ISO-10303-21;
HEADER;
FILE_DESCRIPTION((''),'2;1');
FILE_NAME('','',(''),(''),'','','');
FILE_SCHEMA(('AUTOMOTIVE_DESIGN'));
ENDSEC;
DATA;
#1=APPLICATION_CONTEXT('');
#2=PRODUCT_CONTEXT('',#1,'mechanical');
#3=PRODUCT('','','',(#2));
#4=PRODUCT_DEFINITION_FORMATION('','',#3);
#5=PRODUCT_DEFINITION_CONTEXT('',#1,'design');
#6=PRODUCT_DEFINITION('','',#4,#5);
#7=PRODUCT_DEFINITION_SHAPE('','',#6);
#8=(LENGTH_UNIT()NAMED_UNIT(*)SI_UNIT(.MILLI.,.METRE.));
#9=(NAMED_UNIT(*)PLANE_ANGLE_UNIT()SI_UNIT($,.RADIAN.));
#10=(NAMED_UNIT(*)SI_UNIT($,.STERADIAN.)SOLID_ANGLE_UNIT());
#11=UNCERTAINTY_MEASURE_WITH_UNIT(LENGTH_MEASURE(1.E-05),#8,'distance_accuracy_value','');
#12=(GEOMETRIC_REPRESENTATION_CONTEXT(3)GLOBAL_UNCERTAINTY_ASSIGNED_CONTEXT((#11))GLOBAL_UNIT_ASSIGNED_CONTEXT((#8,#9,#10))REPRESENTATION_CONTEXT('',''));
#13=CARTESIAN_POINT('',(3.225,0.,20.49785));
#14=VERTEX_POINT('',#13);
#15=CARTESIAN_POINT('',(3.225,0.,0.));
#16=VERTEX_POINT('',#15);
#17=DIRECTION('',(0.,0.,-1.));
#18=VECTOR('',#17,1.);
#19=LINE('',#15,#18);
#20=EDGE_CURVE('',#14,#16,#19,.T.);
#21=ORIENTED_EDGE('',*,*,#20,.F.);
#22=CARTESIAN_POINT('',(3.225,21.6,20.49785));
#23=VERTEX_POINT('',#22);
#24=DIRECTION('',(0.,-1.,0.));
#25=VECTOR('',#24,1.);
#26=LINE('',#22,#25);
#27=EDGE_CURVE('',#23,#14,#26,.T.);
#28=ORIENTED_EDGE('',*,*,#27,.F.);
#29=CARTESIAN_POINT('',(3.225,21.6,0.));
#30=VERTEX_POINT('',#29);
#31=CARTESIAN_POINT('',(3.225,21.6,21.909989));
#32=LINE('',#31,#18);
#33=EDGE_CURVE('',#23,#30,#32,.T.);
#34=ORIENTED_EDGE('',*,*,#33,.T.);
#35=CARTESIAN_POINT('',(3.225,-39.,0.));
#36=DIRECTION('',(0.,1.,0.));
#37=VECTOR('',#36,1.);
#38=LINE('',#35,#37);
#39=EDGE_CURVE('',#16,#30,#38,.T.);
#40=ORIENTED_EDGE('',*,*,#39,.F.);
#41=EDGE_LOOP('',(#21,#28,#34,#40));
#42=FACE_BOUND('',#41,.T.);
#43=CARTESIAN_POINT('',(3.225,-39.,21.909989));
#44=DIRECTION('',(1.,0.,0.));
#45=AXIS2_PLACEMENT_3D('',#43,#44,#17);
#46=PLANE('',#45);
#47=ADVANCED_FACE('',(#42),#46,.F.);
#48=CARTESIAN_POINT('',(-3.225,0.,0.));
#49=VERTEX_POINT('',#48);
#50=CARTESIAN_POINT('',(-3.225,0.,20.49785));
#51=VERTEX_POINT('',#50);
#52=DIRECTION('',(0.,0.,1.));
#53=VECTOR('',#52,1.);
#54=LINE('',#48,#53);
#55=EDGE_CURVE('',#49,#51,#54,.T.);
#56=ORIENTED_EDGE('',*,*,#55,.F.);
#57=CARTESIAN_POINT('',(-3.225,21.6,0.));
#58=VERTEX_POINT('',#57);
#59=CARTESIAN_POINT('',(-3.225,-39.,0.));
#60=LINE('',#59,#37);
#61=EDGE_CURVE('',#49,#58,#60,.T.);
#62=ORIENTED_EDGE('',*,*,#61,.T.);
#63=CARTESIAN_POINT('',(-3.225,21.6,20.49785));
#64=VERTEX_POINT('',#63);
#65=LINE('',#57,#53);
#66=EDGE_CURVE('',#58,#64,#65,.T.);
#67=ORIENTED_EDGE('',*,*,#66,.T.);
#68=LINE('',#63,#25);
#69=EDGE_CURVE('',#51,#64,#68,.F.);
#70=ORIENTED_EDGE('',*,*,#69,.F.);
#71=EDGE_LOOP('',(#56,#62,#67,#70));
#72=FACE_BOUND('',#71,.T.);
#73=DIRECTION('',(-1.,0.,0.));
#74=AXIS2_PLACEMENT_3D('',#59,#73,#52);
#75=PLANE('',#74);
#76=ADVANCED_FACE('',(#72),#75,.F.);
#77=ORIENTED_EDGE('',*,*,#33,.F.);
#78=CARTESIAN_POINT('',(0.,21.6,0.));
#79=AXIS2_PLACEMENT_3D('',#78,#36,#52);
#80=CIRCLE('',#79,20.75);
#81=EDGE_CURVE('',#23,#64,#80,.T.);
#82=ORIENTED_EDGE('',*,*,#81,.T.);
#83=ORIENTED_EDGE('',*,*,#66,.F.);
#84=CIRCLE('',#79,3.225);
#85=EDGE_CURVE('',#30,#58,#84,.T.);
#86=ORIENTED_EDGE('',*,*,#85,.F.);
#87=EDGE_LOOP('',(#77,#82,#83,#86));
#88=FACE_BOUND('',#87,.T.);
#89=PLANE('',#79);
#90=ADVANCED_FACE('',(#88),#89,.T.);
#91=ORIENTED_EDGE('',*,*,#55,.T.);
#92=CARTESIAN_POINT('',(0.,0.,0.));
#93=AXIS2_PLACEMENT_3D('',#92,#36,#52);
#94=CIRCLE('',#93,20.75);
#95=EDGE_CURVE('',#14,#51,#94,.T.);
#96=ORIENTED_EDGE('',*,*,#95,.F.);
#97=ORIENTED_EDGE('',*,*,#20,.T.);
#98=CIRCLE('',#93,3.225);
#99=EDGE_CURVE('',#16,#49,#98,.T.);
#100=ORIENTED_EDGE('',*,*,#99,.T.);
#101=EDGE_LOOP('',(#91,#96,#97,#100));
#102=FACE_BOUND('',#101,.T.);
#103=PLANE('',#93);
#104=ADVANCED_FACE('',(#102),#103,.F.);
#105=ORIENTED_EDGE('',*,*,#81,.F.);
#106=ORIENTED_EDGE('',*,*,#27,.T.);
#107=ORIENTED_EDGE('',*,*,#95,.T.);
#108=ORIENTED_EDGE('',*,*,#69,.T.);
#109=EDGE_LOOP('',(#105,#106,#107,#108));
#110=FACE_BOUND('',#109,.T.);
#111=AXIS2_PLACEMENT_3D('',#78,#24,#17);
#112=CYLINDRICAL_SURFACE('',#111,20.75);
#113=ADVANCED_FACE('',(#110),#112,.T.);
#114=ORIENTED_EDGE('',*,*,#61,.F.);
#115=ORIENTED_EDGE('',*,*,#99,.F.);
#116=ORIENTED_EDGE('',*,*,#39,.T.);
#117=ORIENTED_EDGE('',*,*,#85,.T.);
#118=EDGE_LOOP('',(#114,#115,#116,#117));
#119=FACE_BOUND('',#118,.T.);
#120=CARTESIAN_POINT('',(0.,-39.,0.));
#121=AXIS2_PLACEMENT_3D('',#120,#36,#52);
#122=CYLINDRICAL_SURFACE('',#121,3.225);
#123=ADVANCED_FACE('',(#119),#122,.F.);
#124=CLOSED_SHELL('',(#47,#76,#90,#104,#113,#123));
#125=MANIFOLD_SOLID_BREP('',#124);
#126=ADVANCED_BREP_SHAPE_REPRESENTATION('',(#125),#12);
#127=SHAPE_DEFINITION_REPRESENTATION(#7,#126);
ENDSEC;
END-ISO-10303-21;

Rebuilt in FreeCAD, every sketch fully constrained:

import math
import FreeCAD as App
import Part
import Sketcher
Q = App.Units.Quantity

doc = App.newDocument("Part")
params = doc.addObject("Spreadsheet::Sheet", "Params")
for row, (alias, value) in enumerate([
    ("sketch1_diameter", "41.5 mm"),
    ("pad1_length", "21.6 mm"),
    ("pocket1_length", "60.6 mm"),
], start=1):
    params.set(f"A{row}", alias)
    params.set(f"B{row}", "=" + value)
    params.setAlias(f"B{row}", alias)

body = doc.addObject("PartDesign::Body", "Body")

sketch1 = doc.addObject("Sketcher::SketchObject", "Sketch")
body.addObject(sketch1)
sketch1.AttachmentSupport = (doc.XZ_Plane, [""])
sketch1.MapMode = "FlatFace"
sketch1.addGeometry(Part.Circle(App.Vector(0, 0, 0), App.Vector(0, 0, 1), 21), False)
sketch1.addConstraint(Sketcher.Constraint("Coincident", 0, 3, -1, 1))
sketch1.addConstraint(Sketcher.Constraint("Diameter", 0, Q("41.5 mm")))
sketch1.setExpression("Constraints[1]", "Params.sketch1_diameter")
pad1 = doc.addObject("PartDesign::Pad", "Pad")
body.addObject(pad1)
pad1.Profile = sketch1
pad1.setExpression("Length", "Params.pad1_length")
pad1.Reversed = True

sketch2 = doc.addObject("Sketcher::SketchObject", "Sketch001")
body.addObject(sketch2)
sketch2.AttachmentSupport = (doc.XZ_Plane, [""])
sketch2.MapMode = "FlatFace"
sketch2.AttachmentOffset = App.Placement(App.Vector(0, 0, -21.6), App.Rotation())
sketch2.addGeometry(Part.LineSegment(App.Vector(-3.2, 0, 0), App.Vector(-3.2, 21.9, 0)), False)
sketch2.addGeometry(Part.LineSegment(App.Vector(-3.2, 21.9, 0), App.Vector(3.2, 21.9, 0)), False)
sketch2.addGeometry(Part.LineSegment(App.Vector(3.2, 21.9, 0), App.Vector(3.2, 0, 0)), False)
sketch2.addGeometry(Part.ArcOfCircle(Part.Circle(App.Vector(0, 0, 0), App.Vector(0, 0, 1), 3.2), math.radians(180), math.radians(360)), False)
sketch2.addConstraint(Sketcher.Constraint("Coincident", 0, 2, 1, 1))
sketch2.addConstraint(Sketcher.Constraint("Coincident", 1, 2, 2, 1))
sketch2.addConstraint(Sketcher.Constraint("Tangent", 2, 2, 3, 2))
sketch2.addConstraint(Sketcher.Constraint("Tangent", 3, 1, 0, 1))
sketch2.addConstraint(Sketcher.Constraint("Vertical", 0))
sketch2.addConstraint(Sketcher.Constraint("Horizontal", 1))
sketch2.addConstraint(Sketcher.Constraint("Vertical", 2))
sketch2.addConstraint(Sketcher.Constraint("Coincident", 3, 3, -1, 1))
sketch2.addConstraint(Sketcher.Constraint("Radius", 3, Q("3.225 mm")))
sketch2.addConstraint(Sketcher.Constraint("DistanceY", 0, 1, 0, 2, Q("21.909989 mm")))
pocket1 = doc.addObject("PartDesign::Pocket", "Pocket")
body.addObject(pocket1)
pocket1.Profile = sketch2
pocket1.setExpression("Length", "Params.pocket1_length")
pocket1.Reversed = True

doc.recompute()
